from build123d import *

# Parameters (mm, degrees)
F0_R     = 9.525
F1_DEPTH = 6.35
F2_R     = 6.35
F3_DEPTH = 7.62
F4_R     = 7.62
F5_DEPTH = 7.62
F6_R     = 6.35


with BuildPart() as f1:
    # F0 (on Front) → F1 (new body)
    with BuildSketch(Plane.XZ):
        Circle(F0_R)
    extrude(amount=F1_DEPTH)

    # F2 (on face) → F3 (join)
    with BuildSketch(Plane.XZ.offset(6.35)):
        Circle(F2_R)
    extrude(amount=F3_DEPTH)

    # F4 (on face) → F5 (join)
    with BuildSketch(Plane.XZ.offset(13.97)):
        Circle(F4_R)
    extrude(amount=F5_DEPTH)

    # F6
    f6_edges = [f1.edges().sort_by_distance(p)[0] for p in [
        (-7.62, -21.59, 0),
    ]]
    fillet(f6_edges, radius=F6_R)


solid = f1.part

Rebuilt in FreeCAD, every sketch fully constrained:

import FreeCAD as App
import Part
import Sketcher
from FreeCAD import Vector
Q = App.Units.Quantity


def edges_at(feature, points):
    """Names of the edges that pass closest to the given points."""
    edges = feature.Shape.Edges
    near = lambda p: min(range(len(edges)), key=lambda i: edges[i].distToShape(Part.Vertex(*p))[0])
    return sorted({f"Edge{near(p) + 1}" for p in points})

doc = App.newDocument("Part")
body = doc.addObject("PartDesign::Body", "Body")

sketch1 = body.newObject("Sketcher::SketchObject", "Sketch")
sketch1.AttachmentSupport = (doc.getObject("XZ_Plane"), [""])
sketch1.MapMode = "FlatFace"
sketch1.addGeometry(Part.Circle(Vector(0, 0, 0), Vector(0, 0, 1), 9.525), False)
sketch1.addConstraint([
    Sketcher.Constraint("Coincident", 0, 3, -1, 1),
    Sketcher.Constraint("Diameter", 0, Q("0.75 in")),
])
pad1 = body.newObject("PartDesign::Pad", "Pad")
pad1.Profile = sketch1
pad1.Length = Q("0.25 in")

sketch2 = body.newObject("Sketcher::SketchObject", "Sketch001")
sketch2.AttachmentSupport = (doc.getObject("XZ_Plane"), [""])
sketch2.MapMode = "FlatFace"
sketch2.AttachmentOffset = App.Placement(Vector(0, 0, 0.25 * 25.4), App.Rotation())
sketch2.addGeometry(Part.Circle(Vector(0, 0, 0), Vector(0, 0, 1), 6.35), False)
sketch2.addConstraint([
    Sketcher.Constraint("Coincident", 0, 3, -1, 1),
    Sketcher.Constraint("Diameter", 0, Q("0.5 in")),
])
pad2 = body.newObject("PartDesign::Pad", "Pad001")
pad2.Profile = sketch2
pad2.Length = Q("0.3 in")

sketch3 = body.newObject("Sketcher::SketchObject", "Sketch002")
sketch3.AttachmentSupport = (doc.getObject("XZ_Plane"), [""])
sketch3.MapMode = "FlatFace"
sketch3.AttachmentOffset = App.Placement(Vector(0, 0, 0.55 * 25.4), App.Rotation())
sketch3.addGeometry(Part.Circle(Vector(0, 0, 0), Vector(0, 0, 1), 7.62), False)
sketch3.addConstraint([
    Sketcher.Constraint("Coincident", 0, 3, -1, 1),
    Sketcher.Constraint("Diameter", 0, Q("0.6 in")),
])
pad3 = body.newObject("PartDesign::Pad", "Pad002")
pad3.Profile = sketch3
pad3.Length = Q("0.3 in")
doc.recompute()

fillet = body.newObject("PartDesign::Fillet", "Fillet")
fillet.Base = (pad3, edges_at(pad3, [(-7.62, -21.59, 0)]))
fillet.Radius = Q("0.25 in")

doc.recompute()
